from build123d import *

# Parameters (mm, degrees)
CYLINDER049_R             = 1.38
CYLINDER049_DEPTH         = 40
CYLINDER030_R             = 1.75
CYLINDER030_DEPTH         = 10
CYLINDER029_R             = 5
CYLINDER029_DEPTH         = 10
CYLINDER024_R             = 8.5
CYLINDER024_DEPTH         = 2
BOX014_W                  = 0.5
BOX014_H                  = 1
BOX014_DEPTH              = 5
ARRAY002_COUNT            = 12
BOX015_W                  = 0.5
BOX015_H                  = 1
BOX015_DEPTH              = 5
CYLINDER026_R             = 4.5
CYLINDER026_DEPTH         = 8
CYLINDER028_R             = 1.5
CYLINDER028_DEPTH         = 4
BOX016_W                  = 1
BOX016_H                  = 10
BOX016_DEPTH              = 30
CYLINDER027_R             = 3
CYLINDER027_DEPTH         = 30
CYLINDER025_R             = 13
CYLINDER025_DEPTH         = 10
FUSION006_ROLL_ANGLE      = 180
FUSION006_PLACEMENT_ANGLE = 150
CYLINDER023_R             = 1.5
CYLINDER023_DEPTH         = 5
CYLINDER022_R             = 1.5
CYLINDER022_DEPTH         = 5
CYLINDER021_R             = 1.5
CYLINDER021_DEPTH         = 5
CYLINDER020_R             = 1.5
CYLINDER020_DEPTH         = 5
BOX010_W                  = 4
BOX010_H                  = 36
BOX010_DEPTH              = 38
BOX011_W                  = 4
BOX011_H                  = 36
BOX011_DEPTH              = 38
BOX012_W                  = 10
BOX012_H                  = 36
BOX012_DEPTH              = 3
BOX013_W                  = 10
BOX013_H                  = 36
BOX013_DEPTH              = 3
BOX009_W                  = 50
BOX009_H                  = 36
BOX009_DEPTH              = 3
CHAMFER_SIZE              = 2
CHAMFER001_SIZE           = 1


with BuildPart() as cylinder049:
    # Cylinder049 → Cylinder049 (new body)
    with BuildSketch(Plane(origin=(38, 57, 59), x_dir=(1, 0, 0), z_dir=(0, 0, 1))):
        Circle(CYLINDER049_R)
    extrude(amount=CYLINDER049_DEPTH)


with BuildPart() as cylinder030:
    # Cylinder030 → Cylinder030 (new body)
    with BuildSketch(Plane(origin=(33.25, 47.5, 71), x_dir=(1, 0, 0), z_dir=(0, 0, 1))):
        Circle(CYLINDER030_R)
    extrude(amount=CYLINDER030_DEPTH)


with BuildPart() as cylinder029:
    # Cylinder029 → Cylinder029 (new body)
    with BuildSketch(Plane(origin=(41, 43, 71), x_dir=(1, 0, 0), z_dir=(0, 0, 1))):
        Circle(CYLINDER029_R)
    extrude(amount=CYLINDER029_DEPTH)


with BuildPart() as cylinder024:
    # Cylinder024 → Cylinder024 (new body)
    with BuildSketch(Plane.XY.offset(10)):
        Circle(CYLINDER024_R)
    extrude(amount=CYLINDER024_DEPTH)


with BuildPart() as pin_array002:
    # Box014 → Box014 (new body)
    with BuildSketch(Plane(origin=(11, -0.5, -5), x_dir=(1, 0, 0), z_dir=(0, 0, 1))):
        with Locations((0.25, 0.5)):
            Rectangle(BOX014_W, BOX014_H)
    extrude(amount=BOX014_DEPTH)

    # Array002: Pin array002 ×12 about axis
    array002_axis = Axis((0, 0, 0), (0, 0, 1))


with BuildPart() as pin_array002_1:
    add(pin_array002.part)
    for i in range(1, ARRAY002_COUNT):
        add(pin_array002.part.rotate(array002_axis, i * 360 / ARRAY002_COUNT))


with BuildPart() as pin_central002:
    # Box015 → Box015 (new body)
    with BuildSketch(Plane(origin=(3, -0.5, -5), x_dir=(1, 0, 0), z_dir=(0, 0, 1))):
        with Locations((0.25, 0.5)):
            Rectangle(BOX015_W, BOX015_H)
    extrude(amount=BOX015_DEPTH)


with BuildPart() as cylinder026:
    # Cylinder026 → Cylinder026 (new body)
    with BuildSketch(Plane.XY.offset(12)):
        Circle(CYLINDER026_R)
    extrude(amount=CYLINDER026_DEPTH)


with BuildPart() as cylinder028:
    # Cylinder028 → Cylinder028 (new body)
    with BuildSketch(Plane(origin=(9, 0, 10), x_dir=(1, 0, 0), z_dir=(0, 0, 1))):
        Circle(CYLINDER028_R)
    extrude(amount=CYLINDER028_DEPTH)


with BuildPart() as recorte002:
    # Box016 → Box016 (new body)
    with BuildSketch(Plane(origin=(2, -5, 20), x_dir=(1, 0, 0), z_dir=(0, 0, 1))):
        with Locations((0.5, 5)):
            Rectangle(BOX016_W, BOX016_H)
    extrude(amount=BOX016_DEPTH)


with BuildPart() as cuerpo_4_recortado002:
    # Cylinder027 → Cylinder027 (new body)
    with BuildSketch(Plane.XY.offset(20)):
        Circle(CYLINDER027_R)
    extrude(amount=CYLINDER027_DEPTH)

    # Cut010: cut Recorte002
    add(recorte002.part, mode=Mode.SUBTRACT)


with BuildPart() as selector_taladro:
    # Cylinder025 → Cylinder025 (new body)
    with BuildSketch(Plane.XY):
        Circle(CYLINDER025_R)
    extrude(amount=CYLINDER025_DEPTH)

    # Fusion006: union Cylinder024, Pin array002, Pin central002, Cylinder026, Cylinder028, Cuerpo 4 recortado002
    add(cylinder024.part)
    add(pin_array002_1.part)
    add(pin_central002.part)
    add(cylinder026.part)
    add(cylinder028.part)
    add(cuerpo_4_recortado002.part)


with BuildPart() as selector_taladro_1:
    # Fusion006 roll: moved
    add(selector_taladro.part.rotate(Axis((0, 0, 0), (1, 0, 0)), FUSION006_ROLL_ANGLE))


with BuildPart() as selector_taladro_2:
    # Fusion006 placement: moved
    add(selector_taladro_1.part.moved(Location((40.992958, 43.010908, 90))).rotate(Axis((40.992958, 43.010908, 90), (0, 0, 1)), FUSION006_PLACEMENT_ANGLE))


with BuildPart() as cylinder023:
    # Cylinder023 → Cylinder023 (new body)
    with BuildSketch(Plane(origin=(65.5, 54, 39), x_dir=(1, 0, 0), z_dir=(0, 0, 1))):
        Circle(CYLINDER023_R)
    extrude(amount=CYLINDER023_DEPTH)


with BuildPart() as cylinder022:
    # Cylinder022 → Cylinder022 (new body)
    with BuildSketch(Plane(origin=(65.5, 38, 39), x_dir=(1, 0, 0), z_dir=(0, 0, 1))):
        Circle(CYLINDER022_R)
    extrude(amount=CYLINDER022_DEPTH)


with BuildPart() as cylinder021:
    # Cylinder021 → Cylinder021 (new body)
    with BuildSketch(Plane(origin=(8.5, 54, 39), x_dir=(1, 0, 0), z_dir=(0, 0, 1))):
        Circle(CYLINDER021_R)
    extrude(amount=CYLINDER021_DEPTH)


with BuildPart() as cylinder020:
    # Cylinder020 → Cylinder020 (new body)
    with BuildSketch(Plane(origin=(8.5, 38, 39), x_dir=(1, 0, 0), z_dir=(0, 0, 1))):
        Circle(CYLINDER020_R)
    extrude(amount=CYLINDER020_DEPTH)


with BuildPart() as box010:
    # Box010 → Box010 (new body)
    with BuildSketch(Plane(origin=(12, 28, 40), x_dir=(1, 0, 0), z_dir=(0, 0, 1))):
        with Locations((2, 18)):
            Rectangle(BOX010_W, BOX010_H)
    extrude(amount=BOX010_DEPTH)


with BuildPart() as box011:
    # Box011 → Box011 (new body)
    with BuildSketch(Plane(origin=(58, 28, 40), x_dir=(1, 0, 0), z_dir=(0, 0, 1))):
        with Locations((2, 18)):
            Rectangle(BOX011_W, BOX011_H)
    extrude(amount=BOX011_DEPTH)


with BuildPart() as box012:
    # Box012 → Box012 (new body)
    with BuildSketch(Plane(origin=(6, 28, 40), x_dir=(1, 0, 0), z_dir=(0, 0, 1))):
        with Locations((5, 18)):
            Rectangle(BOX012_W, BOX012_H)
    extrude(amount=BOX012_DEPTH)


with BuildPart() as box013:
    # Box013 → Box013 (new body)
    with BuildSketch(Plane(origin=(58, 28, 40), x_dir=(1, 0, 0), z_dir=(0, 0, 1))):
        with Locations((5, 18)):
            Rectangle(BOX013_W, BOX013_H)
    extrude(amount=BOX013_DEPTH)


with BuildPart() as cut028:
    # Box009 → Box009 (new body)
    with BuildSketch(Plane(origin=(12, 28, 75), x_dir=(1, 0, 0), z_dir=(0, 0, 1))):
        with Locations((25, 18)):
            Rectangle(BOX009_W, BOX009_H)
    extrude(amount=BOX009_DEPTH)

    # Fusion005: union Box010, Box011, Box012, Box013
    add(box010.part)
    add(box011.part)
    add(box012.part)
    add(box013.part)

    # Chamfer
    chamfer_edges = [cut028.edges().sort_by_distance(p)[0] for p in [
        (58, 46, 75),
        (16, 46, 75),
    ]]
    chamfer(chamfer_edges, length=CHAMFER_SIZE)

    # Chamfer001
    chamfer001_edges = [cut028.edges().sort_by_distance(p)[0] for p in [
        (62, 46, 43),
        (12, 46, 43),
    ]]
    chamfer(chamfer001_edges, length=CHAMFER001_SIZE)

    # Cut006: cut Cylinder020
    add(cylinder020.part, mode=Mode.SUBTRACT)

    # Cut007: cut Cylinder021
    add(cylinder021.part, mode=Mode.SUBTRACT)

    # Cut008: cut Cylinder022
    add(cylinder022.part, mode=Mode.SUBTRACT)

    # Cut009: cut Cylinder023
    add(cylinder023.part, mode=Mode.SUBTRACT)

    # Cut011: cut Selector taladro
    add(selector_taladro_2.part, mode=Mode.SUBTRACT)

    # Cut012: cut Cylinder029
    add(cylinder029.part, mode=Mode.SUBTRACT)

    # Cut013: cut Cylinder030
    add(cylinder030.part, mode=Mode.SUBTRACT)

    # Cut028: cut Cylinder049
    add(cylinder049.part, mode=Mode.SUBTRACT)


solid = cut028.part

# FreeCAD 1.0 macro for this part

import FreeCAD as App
import Part
import Sketcher

V = App.Vector
Q = App.Units.Quantity


def edges_at(feature, points):
    """Names of the edges that pass closest to the given points."""
    edges = feature.Shape.Edges
    near = lambda p: min(range(len(edges)), key=lambda i: edges[i].distToShape(Part.Vertex(*p))[0])
    return sorted({f"Edge{near(p) + 1}" for p in points})

doc = App.newDocument("Part")
params = doc.addObject("Spreadsheet::Sheet", "Params")
for row, (alias, value) in enumerate([
    ("sketch1_diameter", "2.76 mm"),
    ("pad1_length", "40 mm"),
    ("sketch2_diameter", "3.5 mm"),
    ("pad2_length", "10 mm"),
    ("sketch3_diameter", "10 mm"),
    ("pad3_length", "10 mm"),
    ("sketch4_diameter", "17 mm"),
    ("pad4_length", "2 mm"),
    ("sketch5_height", "1 mm"),
    ("sketch5_width", "0.5 mm"),
    ("pad5_length", "5 mm"),
    ("sketch6_height", "1 mm"),
    ("sketch6_width", "0.5 mm"),
    ("pad6_length", "5 mm"),
    ("sketch7_diameter", "9 mm"),
    ("pad7_length", "8 mm"),
    ("sketch8_diameter", "3 mm"),
    ("pad8_length", "4 mm"),
    ("sketch9_width", "1 mm"),
    ("sketch9_height", "10 mm"),
    ("pad9_length", "30 mm"),
    ("sketch10_diameter", "6 mm"),
    ("pad10_length", "30 mm"),
    ("sketch11_diameter", "26 mm"),
    ("pad11_length", "10 mm"),
    ("sketch12_diameter", "3 mm"),
    ("pad12_length", "5 mm"),
    ("sketch13_diameter", "3 mm"),
    ("pad13_length", "5 mm"),
    ("sketch14_diameter", "3 mm"),
    ("pad14_length", "5 mm"),
    ("sketch15_diameter", "3 mm"),
    ("pad15_length", "5 mm"),
    ("sketch16_width", "4 mm"),
    ("sketch16_height", "36 mm"),
    ("pad16_length", "38 mm"),
    ("sketch17_width", "4 mm"),
    ("sketch17_height", "36 mm"),
    ("pad17_length", "38 mm"),
    ("sketch18_width", "10 mm"),
    ("sketch18_height", "36 mm"),
    ("pad18_length", "3 mm"),
    ("sketch19_width", "10 mm"),
    ("sketch19_height", "36 mm"),
    ("pad19_length", "3 mm"),
    ("sketch20_width", "50 mm"),
    ("sketch20_height", "36 mm"),
    ("pad20_length", "3 mm"),
    ("chamfer_size", "2 mm"),
    ("chamfer2_size", "1 mm"),
], start=1):
    params.set(f"A{row}", alias)
    params.set(f"B{row}", "=" + value)
    params.setAlias(f"B{row}", alias)

body = doc.addObject("PartDesign::Body", "Body")

sketch1 = doc.addObject("Sketcher::SketchObject", "Sketch")
body.addObject(sketch1)
sketch1.AttachmentSupport = (doc.XY_Plane, [""])
sketch1.MapMode = "FlatFace"
sketch1.AttachmentOffset = App.Placement(V(0, 0, 59), App.Rotation())
sketch1.addGeometry(Part.Circle(V(38, 57, 0), V(0, 0, 1), 1.4), False)
sketch1.addConstraint([
    Sketcher.Constraint("Diameter", 0, Q("2.76 mm")),
    Sketcher.Constraint("DistanceX", -1, 1, 0, 3, Q("38 mm")),
    Sketcher.Constraint("DistanceY", -1, 1, 0, 3, Q("57 mm")),
])
sketch1.setExpression("Constraints[0]", "Params.sketch1_diameter")
pad1 = doc.addObject("PartDesign::Pad", "Pad")
body.addObject(pad1)
pad1.Profile = sketch1
pad1.setExpression("Length", "Params.pad1_length")
body2 = doc.addObject("PartDesign::Body", "Body001")

sketch2 = doc.addObject("Sketcher::SketchObject", "Sketch001")
body2.addObject(sketch2)
sketch2.AttachmentSupport = (doc.getObject("XY_Plane001"), [""])
sketch2.MapMode = "FlatFace"
sketch2.AttachmentOffset = App.Placement(V(0, 0, 71), App.Rotation())
sketch2.addGeometry(Part.Circle(V(33.2, 47.5, 0), V(0, 0, 1), 1.8), False)
sketch2.addConstraint([
    Sketcher.Constraint("Diameter", 0, Q("3.5 mm")),
    Sketcher.Constraint("DistanceY", -1, 1, 0, 3, Q("47.5 mm")),
    Sketcher.Constraint("DistanceX", -1, 1, 0, 3, Q("33.25 mm")),
])
sketch2.setExpression("Constraints[0]", "Params.sketch2_diameter")
pad2 = doc.addObject("PartDesign::Pad", "Pad001")
body2.addObject(pad2)
pad2.Profile = sketch2
pad2.setExpression("Length", "Params.pad2_length")
body3 = doc.addObject("PartDesign::Body", "Body002")

sketch3 = doc.addObject("Sketcher::SketchObject", "Sketch002")
body3.addObject(sketch3)
sketch3.AttachmentSupport = (doc.getObject("XY_Plane002"), [""])
sketch3.MapMode = "FlatFace"
sketch3.AttachmentOffset = App.Placement(V(0, 0, 71), App.Rotation())
sketch3.addGeometry(Part.Circle(V(41, 43, 0), V(0, 0, 1), 5), False)
sketch3.addConstraint([
    Sketcher.Constraint("Diameter", 0, Q("10 mm")),
    Sketcher.Constraint("DistanceX", -1, 1, 0, 3, Q("41 mm")),
    Sketcher.Constraint("DistanceY", -1, 1, 0, 3, Q("43 mm")),
])
sketch3.setExpression("Constraints[0]", "Params.sketch3_diameter")
pad3 = doc.addObject("PartDesign::Pad", "Pad002")
body3.addObject(pad3)
pad3.Profile = sketch3
pad3.setExpression("Length", "Params.pad3_length")
body4 = doc.addObject("PartDesign::Body", "Body003")

sketch4 = doc.addObject("Sketcher::SketchObject", "Sketch003")
body4.addObject(sketch4)
sketch4.AttachmentSupport = (doc.getObject("XY_Plane003"), [""])
sketch4.MapMode = "FlatFace"
sketch4.AttachmentOffset = App.Placement(V(0, 0, 10), App.Rotation())
sketch4.addGeometry(Part.Circle(V(0, 0, 0), V(0, 0, 1), 8), False)
sketch4.addConstraint([
    Sketcher.Constraint("Coincident", 0, 3, -1, 1),
    Sketcher.Constraint("Diameter", 0, Q("17 mm")),
])
sketch4.setExpression("Constraints[1]", "Params.sketch4_diameter")
pad4 = doc.addObject("PartDesign::Pad", "Pad003")
body4.addObject(pad4)
pad4.Profile = sketch4
pad4.setExpression("Length", "Params.pad4_length")
body5 = doc.addObject("PartDesign::Body", "Body004")

sketch5 = doc.addObject("Sketcher::SketchObject", "Sketch004")
body5.addObject(sketch5)
sketch5.AttachmentSupport = (doc.getObject("XY_Plane004"), [""])
sketch5.MapMode = "FlatFace"
sketch5.AttachmentOffset = App.Placement(V(0, 0, -5), App.Rotation())
sketch5.addGeometry([
    Part.LineSegment(V(11, 0.5, 0), V(11, -0.5, 0)),
    Part.LineSegment(V(11, -0.5, 0), V(11.5, -0.5, 0)),
    Part.LineSegment(V(11.5, -0.5, 0), V(11.5, 0.5, 0)),
    Part.LineSegment(V(11.5, 0.5, 0), V(11, 0.5, 0)),
], False)
sketch5.addConstraint([
    Sketcher.Constraint("Coincident", 0, 2, 1, 1),
    Sketcher.Constraint("Coincident", 1, 2, 2, 1),
    Sketcher.Constraint("Coincident", 2, 2, 3, 1),
    Sketcher.Constraint("Coincident", 3, 2, 0, 1),
    Sketcher.Constraint("Vertical", 0),
    Sketcher.Constraint("Horizontal", 1),
    Sketcher.Constraint("Vertical", 2),
    Sketcher.Constraint("Horizontal", 3),
    Sketcher.Constraint("DistanceY", 0, 2, 0, 1, Q("1 mm")),
    Sketcher.Constraint("DistanceX", 1, 1, 1, 2, Q("0.5 mm")),
    Sketcher.Constraint("DistanceX", -1, 1, 0, 2, Q("11 mm")),
    Sketcher.Constraint("DistanceY", 0, 2, -1, 1, Q("0.5 mm")),
])
sketch5.setExpression("Constraints[8]", "Params.sketch5_height")
sketch5.setExpression("Constraints[9]", "Params.sketch5_width")
pad5 = doc.addObject("PartDesign::Pad", "Pad004")
body5.addObject(pad5)
pad5.Profile = sketch5
pad5.setExpression("Length", "Params.pad5_length")
body6 = doc.addObject("PartDesign::Body", "Body005")
body6.AllowCompound = True
doc.recompute()

body6.BaseFeature = body5
doc.recompute()

body7 = doc.addObject("PartDesign::Body", "Body006")
body7.BaseFeature = body5
body7.Placement = App.Placement(V(0, 0, 0), App.Rotation(V(0, 0, 1), 30))
boolean = doc.addObject("PartDesign::Boolean", "Boolean")
body6.addObject(boolean)
boolean.Type = "Fuse"
boolean.addObjects([body7])
doc.recompute()

body8 = doc.addObject("PartDesign::Body", "Body007")
body8.BaseFeature = body5
body8.Placement = App.Placement(V(0, 0, 0), App.Rotation(V(0, 0, 1), 60))
boolean2 = doc.addObject("PartDesign::Boolean", "Boolean001")
body6.addObject(boolean2)
boolean2.Type = "Fuse"
boolean2.addObjects([body8])
doc.recompute()

body9 = doc.addObject("PartDesign::Body", "Body008")
body9.BaseFeature = body5
body9.Placement = App.Placement(V(0, 0, 0), App.Rotation(V(0, 0, 1), 90))
boolean3 = doc.addObject("PartDesign::Boolean", "Boolean002")
body6.addObject(boolean3)
boolean3.Type = "Fuse"
boolean3.addObjects([body9])
doc.recompute()

body10 = doc.addObject("PartDesign::Body", "Body009")
body10.BaseFeature = body5
body10.Placement = App.Placement(V(0, 0, 0), App.Rotation(V(0, 0, 1), 120))
boolean4 = doc.addObject("PartDesign::Boolean", "Boolean003")
body6.addObject(boolean4)
boolean4.Type = "Fuse"
boolean4.addObjects([body10])
doc.recompute()

body11 = doc.addObject("PartDesign::Body", "Body010")
body11.BaseFeature = body5
body11.Placement = App.Placement(V(0, 0, 0), App.Rotation(V(0, 0, 1), 150))
boolean5 = doc.addObject("PartDesign::Boolean", "Boolean004")
body6.addObject(boolean5)
boolean5.Type = "Fuse"
boolean5.addObjects([body11])
doc.recompute()

body12 = doc.addObject("PartDesign::Body", "Body011")
body12.BaseFeature = body5
body12.Placement = App.Placement(V(0, 0, 0), App.Rotation(V(0, 0, 1), 180))
boolean6 = doc.addObject("PartDesign::Boolean", "Boolean005")
body6.addObject(boolean6)
boolean6.Type = "Fuse"
boolean6.addObjects([body12])
doc.recompute()

body13 = doc.addObject("PartDesign::Body", "Body012")
body13.BaseFeature = body5
body13.Placement = App.Placement(V(0, 0, 0), App.Rotation(V(0, 0, 1), 210))
boolean7 = doc.addObject("PartDesign::Boolean", "Boolean006")
body6.addObject(boolean7)
boolean7.Type = "Fuse"
boolean7.addObjects([body13])
doc.recompute()

body14 = doc.addObject("PartDesign::Body", "Body013")
body14.BaseFeature = body5
body14.Placement = App.Placement(V(0, 0, 0), App.Rotation(V(0, 0, 1), 240))
boolean8 = doc.addObject("PartDesign::Boolean", "Boolean007")
body6.addObject(boolean8)
boolean8.Type = "Fuse"
boolean8.addObjects([body14])
doc.recompute()

body15 = doc.addObject("PartDesign::Body", "Body014")
body15.BaseFeature = body5
body15.Placement = App.Placement(V(0, 0, 0), App.Rotation(V(0, 0, 1), 270))
boolean9 = doc.addObject("PartDesign::Boolean", "Boolean008")
body6.addObject(boolean9)
boolean9.Type = "Fuse"
boolean9.addObjects([body15])
doc.recompute()

body16 = doc.addObject("PartDesign::Body", "Body015")
body16.BaseFeature = body5
body16.Placement = App.Placement(V(0, 0, 0), App.Rotation(V(0, 0, 1), 300))
boolean10 = doc.addObject("PartDesign::Boolean", "Boolean009")
body6.addObject(boolean10)
boolean10.Type = "Fuse"
boolean10.addObjects([body16])
doc.recompute()

body5.Placement = App.Placement(V(0, 0, 0), App.Rotation(V(0, 0, 1), 330))
boolean11 = doc.addObject("PartDesign::Boolean", "Boolean010")
body6.addObject(boolean11)
boolean11.Type = "Fuse"
boolean11.addObjects([body5])
body17 = doc.addObject("PartDesign::Body", "Body016")

sketch6 = doc.addObject("Sketcher::SketchObject", "Sketch005")
body17.addObject(sketch6)
sketch6.AttachmentSupport = (doc.getObject("XY_Plane016"), [""])
sketch6.MapMode = "FlatFace"
sketch6.AttachmentOffset = App.Placement(V(0, 0, -5), App.Rotation())
sketch6.addGeometry([
    Part.LineSegment(V(3, 0.5, 0), V(3, -0.5, 0)),
    Part.LineSegment(V(3, -0.5, 0), V(3.5, -0.5, 0)),
    Part.LineSegment(V(3.5, -0.5, 0), V(3.5, 0.5, 0)),
    Part.LineSegment(V(3.5, 0.5, 0), V(3, 0.5, 0)),
], False)
sketch6.addConstraint([
    Sketcher.Constraint("Coincident", 0, 2, 1, 1),
    Sketcher.Constraint("Coincident", 1, 2, 2, 1),
    Sketcher.Constraint("Coincident", 2, 2, 3, 1),
    Sketcher.Constraint("Coincident", 3, 2, 0, 1),
    Sketcher.Constraint("Vertical", 0),
    Sketcher.Constraint("Horizontal", 1),
    Sketcher.Constraint("Vertical", 2),
    Sketcher.Constraint("Horizontal", 3),
    Sketcher.Constraint("DistanceY", 0, 2, 0, 1, Q("1 mm")),
    Sketcher.Constraint("DistanceX", 1, 1, 1, 2, Q("0.5 mm")),
    Sketcher.Constraint("DistanceX", -1, 1, 0, 2, Q("3 mm")),
    Sketcher.Constraint("DistanceY", 0, 2, -1, 1, Q("0.5 mm")),
])
sketch6.setExpression("Constraints[8]", "Params.sketch6_height")
sketch6.setExpression("Constraints[9]", "Params.sketch6_width")
pad6 = doc.addObject("PartDesign::Pad", "Pad005")
body17.addObject(pad6)
pad6.Profile = sketch6
pad6.setExpression("Length", "Params.pad6_length")
body18 = doc.addObject("PartDesign::Body", "Body017")

sketch7 = doc.addObject("Sketcher::SketchObject", "Sketch006")
body18.addObject(sketch7)
sketch7.AttachmentSupport = (doc.getObject("XY_Plane017"), [""])
sketch7.MapMode = "FlatFace"
sketch7.AttachmentOffset = App.Placement(V(0, 0, 12), App.Rotation())
sketch7.addGeometry(Part.Circle(V(0, 0, 0), V(0, 0, 1), 4.5), False)
sketch7.addConstraint([
    Sketcher.Constraint("Coincident", 0, 3, -1, 1),
    Sketcher.Constraint("Diameter", 0, Q("9 mm")),
])
sketch7.setExpression("Constraints[1]", "Params.sketch7_diameter")
pad7 = doc.addObject("PartDesign::Pad", "Pad006")
body18.addObject(pad7)
pad7.Profile = sketch7
pad7.setExpression("Length", "Params.pad7_length")
body19 = doc.addObject("PartDesign::Body", "Body018")

sketch8 = doc.addObject("Sketcher::SketchObject", "Sketch007")
body19.addObject(sketch8)
sketch8.AttachmentSupport = (doc.getObject("XY_Plane018"), [""])
sketch8.MapMode = "FlatFace"
sketch8.AttachmentOffset = App.Placement(V(0, 0, 10), App.Rotation())
sketch8.addGeometry(Part.Circle(V(9, 0, 0), V(0, 0, 1), 1.5), False)
sketch8.addConstraint([
    Sketcher.Constraint("PointOnObject", 0, 3, -1),
    Sketcher.Constraint("Diameter", 0, Q("3 mm")),
    Sketcher.Constraint("DistanceX", -1, 1, 0, 3, Q("9 mm")),
])
sketch8.setExpression("Constraints[1]", "Params.sketch8_diameter")
pad8 = doc.addObject("PartDesign::Pad", "Pad007")
body19.addObject(pad8)
pad8.Profile = sketch8
pad8.setExpression("Length", "Params.pad8_length")
body20 = doc.addObject("PartDesign::Body", "Body019")

sketch9 = doc.addObject("Sketcher::SketchObject", "Sketch008")
body20.addObject(sketch9)
sketch9.AttachmentSupport = (doc.getObject("XY_Plane019"), [""])
sketch9.MapMode = "FlatFace"
sketch9.AttachmentOffset = App.Placement(V(0, 0, 20), App.Rotation())
sketch9.addGeometry([
    Part.LineSegment(V(2, 5, 0), V(2, -5, 0)),
    Part.LineSegment(V(2, -5, 0), V(3, -5, 0)),
    Part.LineSegment(V(3, -5, 0), V(3, 5, 0)),
    Part.LineSegment(V(3, 5, 0), V(2, 5, 0)),
], False)
sketch9.addConstraint([
    Sketcher.Constraint("Coincident", 0, 2, 1, 1),
    Sketcher.Constraint("Coincident", 1, 2, 2, 1),
    Sketcher.Constraint("Coincident", 2, 2, 3, 1),
    Sketcher.Constraint("Coincident", 3, 2, 0, 1),
    Sketcher.Constraint("Vertical", 0),
    Sketcher.Constraint("Horizontal", 1),
    Sketcher.Constraint("Vertical", 2),
    Sketcher.Constraint("Horizontal", 3),
    Sketcher.Constraint("DistanceX", 1, 1, 1, 2, Q("1 mm")),
    Sketcher.Constraint("DistanceY", 0, 2, 0, 1, Q("10 mm")),
    Sketcher.Constraint("DistanceX", -1, 1, 0, 2, Q("2 mm")),
    Sketcher.Constraint("DistanceY", 0, 2, -1, 1, Q("5 mm")),
])
sketch9.setExpression("Constraints[8]", "Params.sketch9_width")
sketch9.setExpression("Constraints[9]", "Params.sketch9_height")
pad9 = doc.addObject("PartDesign::Pad", "Pad008")
body20.addObject(pad9)
pad9.Profile = sketch9
pad9.setExpression("Length", "Params.pad9_length")
body21 = doc.addObject("PartDesign::Body", "Body020")

sketch10 = doc.addObject("Sketcher::SketchObject", "Sketch009")
body21.addObject(sketch10)
sketch10.AttachmentSupport = (doc.getObject("XY_Plane020"), [""])
sketch10.MapMode = "FlatFace"
sketch10.AttachmentOffset = App.Placement(V(0, 0, 20), App.Rotation())
sketch10.addGeometry(Part.Circle(V(0, 0, 0), V(0, 0, 1), 3), False)
sketch10.addConstraint([
    Sketcher.Constraint("Coincident", 0, 3, -1, 1),
    Sketcher.Constraint("Diameter", 0, Q("6 mm")),
])
sketch10.setExpression("Constraints[1]", "Params.sketch10_diameter")
pad10 = doc.addObject("PartDesign::Pad", "Pad009")
body21.addObject(pad10)
pad10.Profile = sketch10
pad10.setExpression("Length", "Params.pad10_length")
doc.recompute()

boolean12 = doc.addObject("PartDesign::Boolean", "Boolean011")
body21.addObject(boolean12)
boolean12.Type = "Cut"
boolean12.addObjects([body20])
body22 = doc.addObject("PartDesign::Body", "Body021")

sketch11 = doc.addObject("Sketcher::SketchObject", "Sketch010")
body22.addObject(sketch11)
sketch11.AttachmentSupport = (doc.getObject("XY_Plane021"), [""])
sketch11.MapMode = "FlatFace"
sketch11.addGeometry(Part.Circle(V(0, 0, 0), V(0, 0, 1), 13), False)
sketch11.addConstraint([
    Sketcher.Constraint("Coincident", 0, 3, -1, 1),
    Sketcher.Constraint("Diameter", 0, Q("26 mm")),
])
sketch11.setExpression("Constraints[1]", "Params.sketch11_diameter")
pad11 = doc.addObject("PartDesign::Pad", "Pad010")
body22.addObject(pad11)
pad11.Profile = sketch11
pad11.setExpression("Length", "Params.pad11_length")
doc.recompute()

boolean13 = doc.addObject("PartDesign::Boolean", "Boolean012")
body22.addObject(boolean13)
boolean13.Type = "Fuse"
boolean13.addObjects([body4])
doc.recompute()

boolean14 = doc.addObject("PartDesign::Boolean", "Boolean013")
body22.addObject(boolean14)
boolean14.Type = "Fuse"
boolean14.addObjects([body6])
doc.recompute()

boolean15 = doc.addObject("PartDesign::Boolean", "Boolean014")
body22.addObject(boolean15)
boolean15.Type = "Fuse"
boolean15.addObjects([body17])
doc.recompute()

boolean16 = doc.addObject("PartDesign::Boolean", "Boolean015")
body22.addObject(boolean16)
boolean16.Type = "Fuse"
boolean16.addObjects([body18])
doc.recompute()

boolean17 = doc.addObject("PartDesign::Boolean", "Boolean016")
body22.addObject(boolean17)
boolean17.Type = "Fuse"
boolean17.addObjects([body19])
doc.recompute()

boolean18 = doc.addObject("PartDesign::Boolean", "Boolean017")
body22.addObject(boolean18)
boolean18.Type = "Fuse"
boolean18.addObjects([body21])
body23 = doc.addObject("PartDesign::Body", "Body022")
doc.recompute()

body22.Placement = App.Placement(V(0, 0, 0), App.Rotation(V(1, 0, 0), 180))
boolean19 = doc.addObject("PartDesign::Boolean", "Boolean018")
body23.addObject(boolean19)
boolean19.Type = "Fuse"
boolean19.addObjects([body22])
body24 = doc.addObject("PartDesign::Body", "Body023")
doc.recompute()

body23.Placement = App.Placement(V(40.992958, 43.010908, 90), App.Rotation(V(0, 0, 1), 150))
boolean20 = doc.addObject("PartDesign::Boolean", "Boolean019")
body24.addObject(boolean20)
boolean20.Type = "Fuse"
boolean20.addObjects([body23])
body25 = doc.addObject("PartDesign::Body", "Body024")

sketch12 = doc.addObject("Sketcher::SketchObject", "Sketch011")
body25.addObject(sketch12)
sketch12.AttachmentSupport = (doc.getObject("XY_Plane024"), [""])
sketch12.MapMode = "FlatFace"
sketch12.AttachmentOffset = App.Placement(V(0, 0, 39), App.Rotation())
sketch12.addGeometry(Part.Circle(V(65.5, 54, 0), V(0, 0, 1), 1.5), False)
sketch12.addConstraint([
    Sketcher.Constraint("Diameter", 0, Q("3 mm")),
    Sketcher.Constraint("DistanceY", -1, 1, 0, 3, Q("54 mm")),
    Sketcher.Constraint("DistanceX", -1, 1, 0, 3, Q("65.5 mm")),
])
sketch12.setExpression("Constraints[0]", "Params.sketch12_diameter")
pad12 = doc.addObject("PartDesign::Pad", "Pad011")
body25.addObject(pad12)
pad12.Profile = sketch12
pad12.setExpression("Length", "Params.pad12_length")
body26 = doc.addObject("PartDesign::Body", "Body025")

sketch13 = doc.addObject("Sketcher::SketchObject", "Sketch012")
body26.addObject(sketch13)
sketch13.AttachmentSupport = (doc.getObject("XY_Plane025"), [""])
sketch13.MapMode = "FlatFace"
sketch13.AttachmentOffset = App.Placement(V(0, 0, 39), App.Rotation())
sketch13.addGeometry(Part.Circle(V(65.5, 38, 0), V(0, 0, 1), 1.5), False)
sketch13.addConstraint([
    Sketcher.Constraint("Diameter", 0, Q("3 mm")),
    Sketcher.Constraint("DistanceY", -1, 1, 0, 3, Q("38 mm")),
    Sketcher.Constraint("DistanceX", -1, 1, 0, 3, Q("65.5 mm")),
])
sketch13.setExpression("Constraints[0]", "Params.sketch13_diameter")
pad13 = doc.addObject("PartDesign::Pad", "Pad012")
body26.addObject(pad13)
pad13.Profile = sketch13
pad13.setExpression("Length", "Params.pad13_length")
body27 = doc.addObject("PartDesign::Body", "Body026")

sketch14 = doc.addObject("Sketcher::SketchObject", "Sketch013")
body27.addObject(sketch14)
sketch14.AttachmentSupport = (doc.getObject("XY_Plane026"), [""])
sketch14.MapMode = "FlatFace"
sketch14.AttachmentOffset = App.Placement(V(0, 0, 39), App.Rotation())
sketch14.addGeometry(Part.Circle(V(8.5, 54, 0), V(0, 0, 1), 1.5), False)
sketch14.addConstraint([
    Sketcher.Constraint("Diameter", 0, Q("3 mm")),
    Sketcher.Constraint("DistanceY", -1, 1, 0, 3, Q("54 mm")),
    Sketcher.Constraint("DistanceX", -1, 1, 0, 3, Q("8.5 mm")),
])
sketch14.setExpression("Constraints[0]", "Params.sketch14_diameter")
pad14 = doc.addObject("PartDesign::Pad", "Pad013")
body27.addObject(pad14)
pad14.Profile = sketch14
pad14.setExpression("Length", "Params.pad14_length")
body28 = doc.addObject("PartDesign::Body", "Body027")

sketch15 = doc.addObject("Sketcher::SketchObject", "Sketch014")
body28.addObject(sketch15)
sketch15.AttachmentSupport = (doc.getObject("XY_Plane027"), [""])
sketch15.MapMode = "FlatFace"
sketch15.AttachmentOffset = App.Placement(V(0, 0, 39), App.Rotation())
sketch15.addGeometry(Part.Circle(V(8.5, 38, 0), V(0, 0, 1), 1.5), False)
sketch15.addConstraint([
    Sketcher.Constraint("Diameter", 0, Q("3 mm")),
    Sketcher.Constraint("DistanceY", -1, 1, 0, 3, Q("38 mm")),
    Sketcher.Constraint("DistanceX", -1, 1, 0, 3, Q("8.5 mm")),
])
sketch15.setExpression("Constraints[0]", "Params.sketch15_diameter")
pad15 = doc.addObject("PartDesign::Pad", "Pad014")
body28.addObject(pad15)
pad15.Profile = sketch15
pad15.setExpression("Length", "Params.pad15_length")
body29 = doc.addObject("PartDesign::Body", "Body028")

sketch16 = doc.addObject("Sketcher::SketchObject", "Sketch015")
body29.addObject(sketch16)
sketch16.AttachmentSupport = (doc.getObject("XY_Plane028"), [""])
sketch16.MapMode = "FlatFace"
sketch16.AttachmentOffset = App.Placement(V(0, 0, 40), App.Rotation())
sketch16.addGeometry([
    Part.LineSegment(V(12, 64, 0), V(12, 28, 0)),
    Part.LineSegment(V(12, 28, 0), V(16, 28, 0)),
    Part.LineSegment(V(16, 28, 0), V(16, 64, 0)),
    Part.LineSegment(V(16, 64, 0), V(12, 64, 0)),
], False)
sketch16.addConstraint([
    Sketcher.Constraint("Coincident", 0, 2, 1, 1),
    Sketcher.Constraint("Coincident", 1, 2, 2, 1),
    Sketcher.Constraint("Coincident", 2, 2, 3, 1),
    Sketcher.Constraint("Coincident", 3, 2, 0, 1),
    Sketcher.Constraint("Vertical", 0),
    Sketcher.Constraint("Horizontal", 1),
    Sketcher.Constraint("Vertical", 2),
    Sketcher.Constraint("Horizontal", 3),
    Sketcher.Constraint("DistanceX", 1, 1, 1, 2, Q("4 mm")),
    Sketcher.Constraint("DistanceY", 0, 2, 0, 1, Q("36 mm")),
    Sketcher.Constraint("DistanceX", -1, 1, 0, 2, Q("12 mm")),
    Sketcher.Constraint("DistanceY", -1, 1, 0, 2, Q("28 mm")),
])
sketch16.setExpression("Constraints[8]", "Params.sketch16_width")
sketch16.setExpression("Constraints[9]", "Params.sketch16_height")
pad16 = doc.addObject("PartDesign::Pad", "Pad015")
body29.addObject(pad16)
pad16.Profile = sketch16
pad16.setExpression("Length", "Params.pad16_length")
body30 = doc.addObject("PartDesign::Body", "Body029")

sketch17 = doc.addObject("Sketcher::SketchObject", "Sketch016")
body30.addObject(sketch17)
sketch17.AttachmentSupport = (doc.getObject("XY_Plane029"), [""])
sketch17.MapMode = "FlatFace"
sketch17.AttachmentOffset = App.Placement(V(0, 0, 40), App.Rotation())
sketch17.addGeometry([
    Part.LineSegment(V(58, 64, 0), V(58, 28, 0)),
    Part.LineSegment(V(58, 28, 0), V(62, 28, 0)),
    Part.LineSegment(V(62, 28, 0), V(62, 64, 0)),
    Part.LineSegment(V(62, 64, 0), V(58, 64, 0)),
], False)
sketch17.addConstraint([
    Sketcher.Constraint("Coincident", 0, 2, 1, 1),
    Sketcher.Constraint("Coincident", 1, 2, 2, 1),
    Sketcher.Constraint("Coincident", 2, 2, 3, 1),
    Sketcher.Constraint("Coincident", 3, 2, 0, 1),
    Sketcher.Constraint("Vertical", 0),
    Sketcher.Constraint("Horizontal", 1),
    Sketcher.Constraint("Vertical", 2),
    Sketcher.Constraint("Horizontal", 3),
    Sketcher.Constraint("DistanceX", 1, 1, 1, 2, Q("4 mm")),
    Sketcher.Constraint("DistanceY", 0, 2, 0, 1, Q("36 mm")),
    Sketcher.Constraint("DistanceX", -1, 1, 0, 2, Q("58 mm")),
    Sketcher.Constraint("DistanceY", -1, 1, 0, 2, Q("28 mm")),
])
sketch17.setExpression("Constraints[8]", "Params.sketch17_width")
sketch17.setExpression("Constraints[9]", "Params.sketch17_height")
pad17 = doc.addObject("PartDesign::Pad", "Pad016")
body30.addObject(pad17)
pad17.Profile = sketch17
pad17.setExpression("Length", "Params.pad17_length")
body31 = doc.addObject("PartDesign::Body", "Body030")

sketch18 = doc.addObject("Sketcher::SketchObject", "Sketch017")
body31.addObject(sketch18)
sketch18.AttachmentSupport = (doc.getObject("XY_Plane030"), [""])
sketch18.MapMode = "FlatFace"
sketch18.AttachmentOffset = App.Placement(V(0, 0, 40), App.Rotation())
sketch18.addGeometry([
    Part.LineSegment(V(6, 64, 0), V(6, 28, 0)),
    Part.LineSegment(V(6, 28, 0), V(16, 28, 0)),
    Part.LineSegment(V(16, 28, 0), V(16, 64, 0)),
    Part.LineSegment(V(16, 64, 0), V(6, 64, 0)),
], False)
sketch18.addConstraint([
    Sketcher.Constraint("Coincident", 0, 2, 1, 1),
    Sketcher.Constraint("Coincident", 1, 2, 2, 1),
    Sketcher.Constraint("Coincident", 2, 2, 3, 1),
    Sketcher.Constraint("Coincident", 3, 2, 0, 1),
    Sketcher.Constraint("Vertical", 0),
    Sketcher.Constraint("Horizontal", 1),
    Sketcher.Constraint("Vertical", 2),
    Sketcher.Constraint("Horizontal", 3),
    Sketcher.Constraint("DistanceX", 1, 1, 1, 2, Q("10 mm")),
    Sketcher.Constraint("DistanceY", 0, 2, 0, 1, Q("36 mm")),
    Sketcher.Constraint("DistanceX", -1, 1, 0, 2, Q("6 mm")),
    Sketcher.Constraint("DistanceY", -1, 1, 0, 2, Q("28 mm")),
])
sketch18.setExpression("Constraints[8]", "Params.sketch18_width")
sketch18.setExpression("Constraints[9]", "Params.sketch18_height")
pad18 = doc.addObject("PartDesign::Pad", "Pad017")
body31.addObject(pad18)
pad18.Profile = sketch18
pad18.setExpression("Length", "Params.pad18_length")
body32 = doc.addObject("PartDesign::Body", "Body031")

sketch19 = doc.addObject("Sketcher::SketchObject", "Sketch018")
body32.addObject(sketch19)
sketch19.AttachmentSupport = (doc.getObject("XY_Plane031"), [""])
sketch19.MapMode = "FlatFace"
sketch19.AttachmentOffset = App.Placement(V(0, 0, 40), App.Rotation())
sketch19.addGeometry([
    Part.LineSegment(V(58, 64, 0), V(58, 28, 0)),
    Part.LineSegment(V(58, 28, 0), V(68, 28, 0)),
    Part.LineSegment(V(68, 28, 0), V(68, 64, 0)),
    Part.LineSegment(V(68, 64, 0), V(58, 64, 0)),
], False)
sketch19.addConstraint([
    Sketcher.Constraint("Coincident", 0, 2, 1, 1),
    Sketcher.Constraint("Coincident", 1, 2, 2, 1),
    Sketcher.Constraint("Coincident", 2, 2, 3, 1),
    Sketcher.Constraint("Coincident", 3, 2, 0, 1),
    Sketcher.Constraint("Vertical", 0),
    Sketcher.Constraint("Horizontal", 1),
    Sketcher.Constraint("Vertical", 2),
    Sketcher.Constraint("Horizontal", 3),
    Sketcher.Constraint("DistanceX", 1, 1, 1, 2, Q("10 mm")),
    Sketcher.Constraint("DistanceY", 0, 2, 0, 1, Q("36 mm")),
    Sketcher.Constraint("DistanceX", -1, 1, 0, 2, Q("58 mm")),
    Sketcher.Constraint("DistanceY", -1, 1, 0, 2, Q("28 mm")),
])
sketch19.setExpression("Constraints[8]", "Params.sketch19_width")
sketch19.setExpression("Constraints[9]", "Params.sketch19_height")
pad19 = doc.addObject("PartDesign::Pad", "Pad018")
body32.addObject(pad19)
pad19.Profile = sketch19
pad19.setExpression("Length", "Params.pad19_length")
body33 = doc.addObject("PartDesign::Body", "Body032")

sketch20 = doc.addObject("Sketcher::SketchObject", "Sketch019")
body33.addObject(sketch20)
sketch20.AttachmentSupport = (doc.getObject("XY_Plane032"), [""])
sketch20.MapMode = "FlatFace"
sketch20.AttachmentOffset = App.Placement(V(0, 0, 75), App.Rotation())
sketch20.addGeometry([
    Part.LineSegment(V(12, 64, 0), V(12, 28, 0)),
    Part.LineSegment(V(12, 28, 0), V(62, 28, 0)),
    Part.LineSegment(V(62, 28, 0), V(62, 64, 0)),
    Part.LineSegment(V(62, 64, 0), V(12, 64, 0)),
], False)
sketch20.addConstraint([
    Sketcher.Constraint("Coincident", 0, 2, 1, 1),
    Sketcher.Constraint("Coincident", 1, 2, 2, 1),
    Sketcher.Constraint("Coincident", 2, 2, 3, 1),
    Sketcher.Constraint("Coincident", 3, 2, 0, 1),
    Sketcher.Constraint("Vertical", 0),
    Sketcher.Constraint("Horizontal", 1),
    Sketcher.Constraint("Vertical", 2),
    Sketcher.Constraint("Horizontal", 3),
    Sketcher.Constraint("DistanceX", 1, 1, 1, 2, Q("50 mm")),
    Sketcher.Constraint("DistanceY", 0, 2, 0, 1, Q("36 mm")),
    Sketcher.Constraint("DistanceX", -1, 1, 0, 2, Q("12 mm")),
    Sketcher.Constraint("DistanceY", -1, 1, 0, 2, Q("28 mm")),
])
sketch20.setExpression("Constraints[8]", "Params.sketch20_width")
sketch20.setExpression("Constraints[9]", "Params.sketch20_height")
pad20 = doc.addObject("PartDesign::Pad", "Pad019")
body33.addObject(pad20)
pad20.Profile = sketch20
pad20.setExpression("Length", "Params.pad20_length")
doc.recompute()

boolean21 = doc.addObject("PartDesign::Boolean", "Boolean020")
body33.addObject(boolean21)
boolean21.Type = "Fuse"
boolean21.addObjects([body29])
doc.recompute()

boolean22 = doc.addObject("PartDesign::Boolean", "Boolean021")
body33.addObject(boolean22)
boolean22.Type = "Fuse"
boolean22.addObjects([body30])
doc.recompute()

boolean23 = doc.addObject("PartDesign::Boolean", "Boolean022")
body33.addObject(boolean23)
boolean23.Type = "Fuse"
boolean23.addObjects([body31])
doc.recompute()

boolean24 = doc.addObject("PartDesign::Boolean", "Boolean023")
body33.addObject(boolean24)
boolean24.Type = "Fuse"
boolean24.addObjects([body32])
doc.recompute()

chamfer = doc.addObject("PartDesign::Chamfer", "Chamfer")
body33.addObject(chamfer)
chamfer.Base = (boolean24, edges_at(boolean24, [(58, 46, 75), (16, 46, 75)]))
chamfer.setExpression("Size", "Params.chamfer_size")
doc.recompute()

chamfer2 = doc.addObject("PartDesign::Chamfer", "Chamfer001")
body33.addObject(chamfer2)
chamfer2.Base = (chamfer, edges_at(chamfer, [(62, 46, 43), (12, 46, 43)]))
chamfer2.setExpression("Size", "Params.chamfer2_size")
doc.recompute()

boolean25 = doc.addObject("PartDesign::Boolean", "Boolean024")
body33.addObject(boolean25)
boolean25.Type = "Cut"
boolean25.addObjects([body28])
doc.recompute()

boolean26 = doc.addObject("PartDesign::Boolean", "Boolean025")
body33.addObject(boolean26)
boolean26.Type = "Cut"
boolean26.addObjects([body27])
doc.recompute()

boolean27 = doc.addObject("PartDesign::Boolean", "Boolean026")
body33.addObject(boolean27)
boolean27.Type = "Cut"
boolean27.addObjects([body26])
doc.recompute()

boolean28 = doc.addObject("PartDesign::Boolean", "Boolean027")
body33.addObject(boolean28)
boolean28.Type = "Cut"
boolean28.addObjects([body25])
doc.recompute()

boolean29 = doc.addObject("PartDesign::Boolean", "Boolean028")
body33.addObject(boolean29)
boolean29.Type = "Cut"
boolean29.addObjects([body24])
doc.recompute()

boolean30 = doc.addObject("PartDesign::Boolean", "Boolean029")
body33.addObject(boolean30)
boolean30.Type = "Cut"
boolean30.addObjects([body3])
doc.recompute()

boolean31 = doc.addObject("PartDesign::Boolean", "Boolean030")
body33.addObject(boolean31)
boolean31.Type = "Cut"
boolean31.addObjects([body2])
doc.recompute()

boolean32 = doc.addObject("PartDesign::Boolean", "Boolean031")
body33.addObject(boolean32)
boolean32.Type = "Cut"
boolean32.addObjects([body])

doc.recompute()
